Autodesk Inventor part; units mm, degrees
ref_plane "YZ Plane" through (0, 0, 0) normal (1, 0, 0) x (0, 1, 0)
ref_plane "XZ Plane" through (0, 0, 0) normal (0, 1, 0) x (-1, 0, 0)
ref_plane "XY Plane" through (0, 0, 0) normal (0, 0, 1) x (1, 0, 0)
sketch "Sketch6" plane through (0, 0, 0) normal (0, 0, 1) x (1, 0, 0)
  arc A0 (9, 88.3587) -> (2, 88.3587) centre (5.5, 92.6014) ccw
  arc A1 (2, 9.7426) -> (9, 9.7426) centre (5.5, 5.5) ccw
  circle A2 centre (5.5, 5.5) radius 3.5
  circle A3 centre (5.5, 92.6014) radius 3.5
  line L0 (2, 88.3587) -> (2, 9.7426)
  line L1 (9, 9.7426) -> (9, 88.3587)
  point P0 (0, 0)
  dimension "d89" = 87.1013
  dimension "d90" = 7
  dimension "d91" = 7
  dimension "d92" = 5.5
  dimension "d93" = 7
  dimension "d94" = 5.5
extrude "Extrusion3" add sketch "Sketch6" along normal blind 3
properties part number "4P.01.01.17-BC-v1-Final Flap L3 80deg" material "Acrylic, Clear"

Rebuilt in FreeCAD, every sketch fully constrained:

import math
import FreeCAD as App
import Part
import Sketcher

V = App.Vector
Q = App.Units.Quantity

doc = App.newDocument("Part")
body = doc.addObject("PartDesign::Body", "Body")

# Sketch on XY plane
sketch1 = body.newObject("Sketcher::SketchObject", "Sketch")
sketch1.AttachmentSupport = (doc.getObject("XY_Plane"), [""])
sketch1.MapMode = "FlatFace"
sketch1.addGeometry(Part.LineSegment(V(9, 9.7, 0), V(9, 88.4, 0)), False)
sketch1.addGeometry(Part.ArcOfCircle(Part.Circle(V(5.5, 92.6, 0), V(0, 0, 1), 5.5), math.radians(-50), math.radians(230)), False)
sketch1.addGeometry(Part.LineSegment(V(2, 88.4, 0), V(2, 9.7, 0)), False)
sketch1.addGeometry(Part.ArcOfCircle(Part.Circle(V(5.5, 5.5, 0), V(0, 0, 1), 5.5), math.radians(130), math.radians(410)), False)
sketch1.addGeometry(Part.Circle(V(5.5, 5.5, 0), V(0, 0, 1), 3.5), False)
sketch1.addGeometry(Part.Circle(V(5.5, 92.6, 0), V(0, 0, 1), 3.5), False)
sketch1.addConstraint(Sketcher.Constraint("Coincident", 0, 2, 1, 1))
sketch1.addConstraint(Sketcher.Constraint("Coincident", 1, 2, 2, 1))
sketch1.addConstraint(Sketcher.Constraint("Coincident", 2, 2, 3, 1))
sketch1.addConstraint(Sketcher.Constraint("Coincident", 3, 2, 0, 1))
sketch1.addConstraint(Sketcher.Constraint("Vertical", 0))
sketch1.addConstraint(Sketcher.Constraint("Vertical", 2))
sketch1.addConstraint(Sketcher.Constraint("Coincident", 4, 3, 3, 3))
sketch1.addConstraint(Sketcher.Constraint("Coincident", 5, 3, 1, 3))
sketch1.addConstraint(Sketcher.Constraint("Equal", 1, 3))
sketch1.addConstraint(Sketcher.Constraint("Equal", 4, 5))
sketch1.addConstraint(Sketcher.Constraint("Horizontal", 0, 2, 1, 2))
sketch1.addConstraint(Sketcher.Constraint("Horizontal", 2, 2, 3, 2))
sketch1.addConstraint(Sketcher.Constraint("Diameter", 4, Q("7 mm")))
sketch1.addConstraint(Sketcher.Constraint("Radius", 1, Q("5.5 mm")))
sketch1.addConstraint(Sketcher.Constraint("DistanceX", 1, 2, 0, 2, Q("7 mm")))
sketch1.addConstraint(Sketcher.Constraint("DistanceX", -1, 1, 1, 3, Q("5.5 mm")))
sketch1.addConstraint(Sketcher.Constraint("DistanceY", -1, 1, 3, 3, Q("5.5 mm")))
sketch1.addConstraint(Sketcher.Constraint("DistanceY", 3, 3, 1, 3, Q("87.1014 mm")))
pad1 = body.newObject("PartDesign::Pad", "Pad")
pad1.Profile = sketch1
pad1.Length = 3

doc.recompute()
